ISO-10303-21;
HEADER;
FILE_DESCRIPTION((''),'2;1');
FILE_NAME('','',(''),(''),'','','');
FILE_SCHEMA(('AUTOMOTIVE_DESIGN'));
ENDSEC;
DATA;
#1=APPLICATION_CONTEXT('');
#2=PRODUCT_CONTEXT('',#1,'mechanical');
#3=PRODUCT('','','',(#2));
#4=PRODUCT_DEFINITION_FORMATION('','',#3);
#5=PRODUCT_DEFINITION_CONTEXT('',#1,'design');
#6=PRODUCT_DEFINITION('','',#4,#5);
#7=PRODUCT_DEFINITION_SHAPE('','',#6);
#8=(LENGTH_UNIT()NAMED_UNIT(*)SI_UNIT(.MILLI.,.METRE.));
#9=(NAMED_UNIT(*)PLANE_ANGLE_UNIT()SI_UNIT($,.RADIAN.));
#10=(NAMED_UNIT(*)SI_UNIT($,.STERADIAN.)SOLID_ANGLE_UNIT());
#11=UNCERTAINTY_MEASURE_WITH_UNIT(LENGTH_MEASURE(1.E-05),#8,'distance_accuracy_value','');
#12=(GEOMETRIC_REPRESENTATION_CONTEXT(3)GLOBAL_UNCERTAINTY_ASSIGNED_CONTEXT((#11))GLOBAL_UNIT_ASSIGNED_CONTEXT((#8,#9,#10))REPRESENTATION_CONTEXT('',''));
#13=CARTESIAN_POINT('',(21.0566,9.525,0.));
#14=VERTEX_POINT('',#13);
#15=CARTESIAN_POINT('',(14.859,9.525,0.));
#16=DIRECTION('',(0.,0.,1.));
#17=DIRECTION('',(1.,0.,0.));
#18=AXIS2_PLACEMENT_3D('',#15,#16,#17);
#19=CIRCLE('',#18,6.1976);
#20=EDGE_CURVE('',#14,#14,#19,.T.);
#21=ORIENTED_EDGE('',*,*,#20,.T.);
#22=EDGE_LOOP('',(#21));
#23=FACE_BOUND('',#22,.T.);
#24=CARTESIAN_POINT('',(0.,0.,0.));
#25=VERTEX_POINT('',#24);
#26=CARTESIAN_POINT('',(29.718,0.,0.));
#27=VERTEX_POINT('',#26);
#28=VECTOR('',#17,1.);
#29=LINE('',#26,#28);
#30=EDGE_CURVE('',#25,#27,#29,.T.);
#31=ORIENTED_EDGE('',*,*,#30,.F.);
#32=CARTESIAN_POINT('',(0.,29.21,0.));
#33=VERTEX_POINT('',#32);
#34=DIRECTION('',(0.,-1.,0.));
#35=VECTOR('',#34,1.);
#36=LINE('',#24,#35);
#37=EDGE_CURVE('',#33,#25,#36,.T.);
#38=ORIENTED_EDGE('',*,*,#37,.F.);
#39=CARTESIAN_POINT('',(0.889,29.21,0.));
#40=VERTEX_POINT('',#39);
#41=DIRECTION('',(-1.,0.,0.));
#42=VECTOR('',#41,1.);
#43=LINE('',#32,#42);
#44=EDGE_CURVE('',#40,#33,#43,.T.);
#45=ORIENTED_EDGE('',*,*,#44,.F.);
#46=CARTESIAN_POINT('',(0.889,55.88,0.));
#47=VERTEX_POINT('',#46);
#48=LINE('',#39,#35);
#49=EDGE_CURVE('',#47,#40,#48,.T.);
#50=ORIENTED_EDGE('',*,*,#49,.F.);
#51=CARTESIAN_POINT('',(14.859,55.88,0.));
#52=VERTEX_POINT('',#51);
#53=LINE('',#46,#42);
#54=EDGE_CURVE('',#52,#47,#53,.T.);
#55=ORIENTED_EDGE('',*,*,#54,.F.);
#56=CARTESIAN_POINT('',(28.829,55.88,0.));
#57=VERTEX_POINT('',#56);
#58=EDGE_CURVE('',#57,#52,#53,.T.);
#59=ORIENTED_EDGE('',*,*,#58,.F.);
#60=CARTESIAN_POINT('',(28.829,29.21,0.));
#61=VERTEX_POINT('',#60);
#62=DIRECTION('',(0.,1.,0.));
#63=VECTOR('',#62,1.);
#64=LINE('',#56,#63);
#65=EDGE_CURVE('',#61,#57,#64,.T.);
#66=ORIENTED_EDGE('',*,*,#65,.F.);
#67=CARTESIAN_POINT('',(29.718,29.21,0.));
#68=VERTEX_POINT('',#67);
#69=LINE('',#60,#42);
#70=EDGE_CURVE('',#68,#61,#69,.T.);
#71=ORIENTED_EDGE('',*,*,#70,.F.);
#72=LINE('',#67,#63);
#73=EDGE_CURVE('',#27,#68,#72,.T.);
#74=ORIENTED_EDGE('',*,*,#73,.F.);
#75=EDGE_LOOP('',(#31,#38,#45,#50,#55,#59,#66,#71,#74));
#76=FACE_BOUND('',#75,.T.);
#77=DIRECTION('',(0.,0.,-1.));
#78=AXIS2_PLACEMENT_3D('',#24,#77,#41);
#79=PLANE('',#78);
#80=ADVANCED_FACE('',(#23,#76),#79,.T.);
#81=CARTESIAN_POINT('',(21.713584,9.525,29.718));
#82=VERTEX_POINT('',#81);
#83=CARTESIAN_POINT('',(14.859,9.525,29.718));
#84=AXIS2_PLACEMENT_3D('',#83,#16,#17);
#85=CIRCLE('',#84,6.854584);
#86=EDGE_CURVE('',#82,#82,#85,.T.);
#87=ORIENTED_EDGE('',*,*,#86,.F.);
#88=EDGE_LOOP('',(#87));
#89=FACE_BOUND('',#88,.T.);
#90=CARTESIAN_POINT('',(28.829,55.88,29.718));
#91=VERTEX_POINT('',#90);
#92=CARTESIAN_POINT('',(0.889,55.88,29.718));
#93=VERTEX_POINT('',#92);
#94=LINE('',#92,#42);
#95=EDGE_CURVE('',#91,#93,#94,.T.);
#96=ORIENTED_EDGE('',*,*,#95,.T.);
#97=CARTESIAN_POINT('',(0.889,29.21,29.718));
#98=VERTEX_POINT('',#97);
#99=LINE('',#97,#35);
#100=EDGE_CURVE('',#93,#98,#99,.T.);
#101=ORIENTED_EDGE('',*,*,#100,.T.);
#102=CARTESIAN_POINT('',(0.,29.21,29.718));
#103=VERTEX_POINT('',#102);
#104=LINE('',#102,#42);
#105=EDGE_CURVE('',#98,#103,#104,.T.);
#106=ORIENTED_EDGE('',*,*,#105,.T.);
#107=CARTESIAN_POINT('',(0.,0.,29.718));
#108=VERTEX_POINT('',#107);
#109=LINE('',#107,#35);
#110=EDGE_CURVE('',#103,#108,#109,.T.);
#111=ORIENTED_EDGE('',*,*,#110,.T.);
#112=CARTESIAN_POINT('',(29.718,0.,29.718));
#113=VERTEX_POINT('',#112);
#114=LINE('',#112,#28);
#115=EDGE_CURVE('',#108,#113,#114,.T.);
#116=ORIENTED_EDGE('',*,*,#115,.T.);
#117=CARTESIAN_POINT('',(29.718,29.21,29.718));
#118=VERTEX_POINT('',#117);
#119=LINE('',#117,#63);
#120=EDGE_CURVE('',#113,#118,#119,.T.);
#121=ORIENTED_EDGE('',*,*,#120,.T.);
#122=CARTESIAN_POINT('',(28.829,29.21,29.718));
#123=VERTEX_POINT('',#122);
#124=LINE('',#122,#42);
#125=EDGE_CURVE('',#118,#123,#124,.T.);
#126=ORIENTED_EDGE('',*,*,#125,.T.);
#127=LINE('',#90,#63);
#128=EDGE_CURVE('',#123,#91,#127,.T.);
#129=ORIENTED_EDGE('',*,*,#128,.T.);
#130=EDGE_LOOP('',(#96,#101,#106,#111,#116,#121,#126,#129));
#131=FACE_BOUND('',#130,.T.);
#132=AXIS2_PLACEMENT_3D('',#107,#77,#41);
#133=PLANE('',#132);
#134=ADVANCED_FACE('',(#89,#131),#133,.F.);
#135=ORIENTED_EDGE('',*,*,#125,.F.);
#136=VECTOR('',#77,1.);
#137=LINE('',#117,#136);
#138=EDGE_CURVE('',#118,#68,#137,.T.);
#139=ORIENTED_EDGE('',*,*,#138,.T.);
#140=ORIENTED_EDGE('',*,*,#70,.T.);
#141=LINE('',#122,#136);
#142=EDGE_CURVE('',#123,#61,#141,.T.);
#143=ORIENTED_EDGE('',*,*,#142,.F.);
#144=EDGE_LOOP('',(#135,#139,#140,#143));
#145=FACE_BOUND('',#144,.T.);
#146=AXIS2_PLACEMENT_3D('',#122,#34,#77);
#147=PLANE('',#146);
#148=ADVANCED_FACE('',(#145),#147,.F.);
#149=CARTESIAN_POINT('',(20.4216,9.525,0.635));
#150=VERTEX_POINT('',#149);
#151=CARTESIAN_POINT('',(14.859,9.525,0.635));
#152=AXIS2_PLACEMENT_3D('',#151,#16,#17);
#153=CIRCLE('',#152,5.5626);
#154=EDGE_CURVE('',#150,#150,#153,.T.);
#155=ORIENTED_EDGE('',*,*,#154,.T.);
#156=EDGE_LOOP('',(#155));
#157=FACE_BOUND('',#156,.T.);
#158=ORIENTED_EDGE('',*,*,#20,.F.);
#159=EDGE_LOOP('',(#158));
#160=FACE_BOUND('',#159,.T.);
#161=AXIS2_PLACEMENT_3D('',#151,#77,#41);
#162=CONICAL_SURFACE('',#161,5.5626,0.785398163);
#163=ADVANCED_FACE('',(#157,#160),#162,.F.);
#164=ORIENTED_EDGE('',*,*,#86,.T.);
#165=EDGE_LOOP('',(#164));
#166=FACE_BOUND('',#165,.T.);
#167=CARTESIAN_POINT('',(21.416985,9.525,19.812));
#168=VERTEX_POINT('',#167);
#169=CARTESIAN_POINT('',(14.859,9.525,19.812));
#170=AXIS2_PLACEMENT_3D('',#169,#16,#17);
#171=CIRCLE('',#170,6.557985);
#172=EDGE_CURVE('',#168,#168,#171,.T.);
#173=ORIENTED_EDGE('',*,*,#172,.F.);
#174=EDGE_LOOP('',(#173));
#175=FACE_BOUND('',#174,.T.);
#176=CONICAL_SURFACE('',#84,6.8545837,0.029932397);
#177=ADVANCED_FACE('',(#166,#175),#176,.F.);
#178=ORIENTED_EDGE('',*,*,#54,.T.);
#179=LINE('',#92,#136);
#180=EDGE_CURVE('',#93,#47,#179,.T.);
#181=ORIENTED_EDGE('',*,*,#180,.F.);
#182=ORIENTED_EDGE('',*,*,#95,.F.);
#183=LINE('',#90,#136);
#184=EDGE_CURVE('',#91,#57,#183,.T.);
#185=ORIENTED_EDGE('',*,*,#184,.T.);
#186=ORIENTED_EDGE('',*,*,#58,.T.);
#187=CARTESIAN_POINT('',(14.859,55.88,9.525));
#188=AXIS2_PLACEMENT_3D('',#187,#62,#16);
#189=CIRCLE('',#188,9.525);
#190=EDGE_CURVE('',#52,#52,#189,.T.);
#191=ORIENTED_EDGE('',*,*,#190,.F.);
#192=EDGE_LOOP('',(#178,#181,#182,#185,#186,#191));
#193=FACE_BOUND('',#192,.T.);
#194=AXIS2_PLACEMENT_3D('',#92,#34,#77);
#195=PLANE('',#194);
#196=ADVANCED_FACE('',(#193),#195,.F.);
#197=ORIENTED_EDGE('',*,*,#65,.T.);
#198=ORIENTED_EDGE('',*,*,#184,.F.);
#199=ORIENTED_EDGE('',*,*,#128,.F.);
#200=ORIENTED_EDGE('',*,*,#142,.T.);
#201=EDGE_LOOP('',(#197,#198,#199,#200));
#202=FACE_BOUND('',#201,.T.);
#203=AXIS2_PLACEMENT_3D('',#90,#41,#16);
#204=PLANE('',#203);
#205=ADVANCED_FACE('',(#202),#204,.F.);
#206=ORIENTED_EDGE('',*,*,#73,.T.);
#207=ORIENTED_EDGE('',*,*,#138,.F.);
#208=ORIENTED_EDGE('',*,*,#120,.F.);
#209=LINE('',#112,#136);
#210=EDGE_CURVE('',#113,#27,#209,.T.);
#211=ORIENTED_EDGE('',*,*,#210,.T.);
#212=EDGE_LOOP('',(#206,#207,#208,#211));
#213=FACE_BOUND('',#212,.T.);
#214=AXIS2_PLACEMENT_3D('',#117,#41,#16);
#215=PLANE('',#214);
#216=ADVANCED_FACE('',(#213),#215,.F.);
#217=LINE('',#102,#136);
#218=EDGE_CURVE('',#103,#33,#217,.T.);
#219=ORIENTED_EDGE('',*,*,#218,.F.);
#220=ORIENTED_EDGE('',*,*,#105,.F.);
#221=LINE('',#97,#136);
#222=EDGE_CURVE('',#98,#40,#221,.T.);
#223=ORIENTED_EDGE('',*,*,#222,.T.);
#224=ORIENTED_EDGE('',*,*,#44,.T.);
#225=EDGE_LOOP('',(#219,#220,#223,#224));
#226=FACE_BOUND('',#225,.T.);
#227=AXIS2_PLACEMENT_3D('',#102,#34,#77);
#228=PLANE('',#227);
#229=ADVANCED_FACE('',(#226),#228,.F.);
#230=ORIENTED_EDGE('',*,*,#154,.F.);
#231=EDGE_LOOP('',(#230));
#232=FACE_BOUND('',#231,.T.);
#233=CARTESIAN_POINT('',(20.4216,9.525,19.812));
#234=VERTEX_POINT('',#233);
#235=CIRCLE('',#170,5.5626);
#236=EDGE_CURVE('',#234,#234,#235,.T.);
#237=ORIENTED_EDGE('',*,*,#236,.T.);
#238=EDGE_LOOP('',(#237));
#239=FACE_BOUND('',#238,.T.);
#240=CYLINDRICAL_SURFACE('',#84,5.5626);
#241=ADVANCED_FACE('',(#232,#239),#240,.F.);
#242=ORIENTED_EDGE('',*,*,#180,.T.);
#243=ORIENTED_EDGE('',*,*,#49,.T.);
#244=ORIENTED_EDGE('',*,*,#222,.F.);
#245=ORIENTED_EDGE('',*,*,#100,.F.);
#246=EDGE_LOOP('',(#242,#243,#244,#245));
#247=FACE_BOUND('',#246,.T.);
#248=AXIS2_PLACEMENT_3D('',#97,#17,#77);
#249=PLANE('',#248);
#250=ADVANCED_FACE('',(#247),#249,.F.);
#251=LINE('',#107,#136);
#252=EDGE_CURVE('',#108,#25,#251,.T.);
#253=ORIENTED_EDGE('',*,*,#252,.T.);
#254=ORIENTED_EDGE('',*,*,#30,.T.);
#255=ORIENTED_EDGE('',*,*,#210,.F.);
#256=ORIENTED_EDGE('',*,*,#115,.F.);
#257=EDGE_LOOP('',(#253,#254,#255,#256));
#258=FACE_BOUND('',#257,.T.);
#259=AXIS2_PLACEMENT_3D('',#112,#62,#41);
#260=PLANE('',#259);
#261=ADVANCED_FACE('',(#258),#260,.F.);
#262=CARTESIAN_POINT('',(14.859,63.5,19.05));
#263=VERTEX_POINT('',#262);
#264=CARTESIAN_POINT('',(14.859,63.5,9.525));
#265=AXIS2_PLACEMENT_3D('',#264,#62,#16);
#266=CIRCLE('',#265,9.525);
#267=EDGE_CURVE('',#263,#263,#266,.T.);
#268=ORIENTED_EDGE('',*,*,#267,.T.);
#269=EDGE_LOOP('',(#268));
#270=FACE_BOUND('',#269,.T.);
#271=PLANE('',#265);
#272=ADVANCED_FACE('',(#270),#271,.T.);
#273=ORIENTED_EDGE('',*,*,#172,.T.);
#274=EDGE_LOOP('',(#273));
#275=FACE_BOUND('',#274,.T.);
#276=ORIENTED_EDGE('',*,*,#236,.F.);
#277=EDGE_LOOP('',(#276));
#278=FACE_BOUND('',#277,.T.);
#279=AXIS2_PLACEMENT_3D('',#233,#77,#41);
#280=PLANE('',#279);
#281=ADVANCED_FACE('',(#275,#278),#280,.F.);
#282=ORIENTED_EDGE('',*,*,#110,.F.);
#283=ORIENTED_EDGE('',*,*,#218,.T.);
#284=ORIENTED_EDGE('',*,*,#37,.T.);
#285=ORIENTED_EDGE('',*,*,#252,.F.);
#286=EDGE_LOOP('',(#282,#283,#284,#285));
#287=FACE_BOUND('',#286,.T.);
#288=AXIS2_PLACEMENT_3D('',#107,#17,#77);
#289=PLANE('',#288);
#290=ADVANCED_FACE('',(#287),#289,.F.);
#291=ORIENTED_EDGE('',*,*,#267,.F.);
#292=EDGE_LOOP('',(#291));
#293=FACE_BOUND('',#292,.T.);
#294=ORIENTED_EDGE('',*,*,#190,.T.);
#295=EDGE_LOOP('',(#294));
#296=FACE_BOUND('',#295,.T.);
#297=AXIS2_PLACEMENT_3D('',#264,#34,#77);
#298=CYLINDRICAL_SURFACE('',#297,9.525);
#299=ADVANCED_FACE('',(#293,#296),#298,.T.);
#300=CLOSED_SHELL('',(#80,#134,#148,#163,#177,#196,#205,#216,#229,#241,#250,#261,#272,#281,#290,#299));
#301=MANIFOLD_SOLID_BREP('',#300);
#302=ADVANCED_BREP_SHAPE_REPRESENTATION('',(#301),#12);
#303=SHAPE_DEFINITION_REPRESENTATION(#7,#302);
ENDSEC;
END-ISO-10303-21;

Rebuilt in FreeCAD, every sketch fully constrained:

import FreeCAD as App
import Part
import Sketcher
from FreeCAD import Vector
Q = App.Units.Quantity


def add_polygon(sketch, points):
    """Adds a closed chain of lines whose ends are joined by coincident constraints."""
    first, n = sketch.GeometryCount, len(points)
    for a, b in zip(points, points[1:] + points[:1]):
        sketch.addGeometry(Part.LineSegment(App.Vector(*a, 0), App.Vector(*b, 0)), False)
    for i in range(n):
        sketch.addConstraint(Sketcher.Constraint("Coincident", first + i, 2, first + (i + 1) % n, 1))

doc = App.newDocument("Part")
body = doc.addObject("PartDesign::Body", "Body")

# Sketch on XY plane
sketch1 = doc.addObject("Sketcher::SketchObject", "Sketch")
body.addObject(sketch1)
sketch1.AttachmentSupport = (doc.XY_Plane, [""])
sketch1.MapMode = "FlatFace"
add_polygon(sketch1, [(0, 29.21), (0, 0), (29.718, 0), (29.718, 29.21), (28.829, 29.21), (28.829, 55.88), (0.889, 55.88), (0.889, 29.21)])  # lines 0-7
sketch1.addConstraint(Sketcher.Constraint("Vertical", 0))
sketch1.addConstraint(Sketcher.Constraint("Horizontal", 1))
sketch1.addConstraint(Sketcher.Constraint("Vertical", 2))
sketch1.addConstraint(Sketcher.Constraint("Horizontal", 3))
sketch1.addConstraint(Sketcher.Constraint("Vertical", 4))
sketch1.addConstraint(Sketcher.Constraint("Horizontal", 5))
sketch1.addConstraint(Sketcher.Constraint("Vertical", 6))
sketch1.addConstraint(Sketcher.Constraint("Horizontal", 7))
sketch1.addConstraint(Sketcher.Constraint("Coincident", 0, 2, -1, 1))
sketch1.addConstraint(Sketcher.Constraint("Horizontal", 3, 2, 6, 2))
sketch1.addConstraint(Sketcher.Constraint("Equal", 3, 7))
sketch1.addConstraint(Sketcher.Constraint("DistanceX", 5, 2, 5, 1, Q("1.1 in")))
sketch1.addConstraint(Sketcher.Constraint("DistanceX", 1, 1, 1, 2, Q("1.17 in")))
sketch1.addConstraint(Sketcher.Constraint("DistanceY", 0, 2, 0, 1, Q("1.15 in")))
sketch1.addConstraint(Sketcher.Constraint("DistanceY", 4, 1, 4, 2, Q("1.05 in")))
pad1 = doc.addObject("PartDesign::Pad", "Pad")
body.addObject(pad1)
pad1.Profile = sketch1
pad1.Length = Q("1.17 in")

# Sketch on XZ plane
sketch2 = doc.addObject("Sketcher::SketchObject", "Sketch001")
body.addObject(sketch2)
sketch2.AttachmentSupport = (doc.XZ_Plane, [""])
sketch2.MapMode = "FlatFace"
sketch2.AttachmentOffset = App.Placement(Vector(0, 0, -2.2 * 25.4), App.Rotation())
sketch2.addGeometry(Part.Circle(Vector(14.859, 9.525, 0), Vector(0, 0, 1), 9.525), False)
sketch2.addConstraint(Sketcher.Constraint("Diameter", 0, Q("0.75 in")))
sketch2.addConstraint(Sketcher.Constraint("DistanceX", -1, 1, 0, 3, Q("0.585 in")))
sketch2.addConstraint(Sketcher.Constraint("DistanceY", -1, 1, 0, 3, Q("0.375 in")))
pad2 = doc.addObject("PartDesign::Pad", "Pad001")
body.addObject(pad2)
pad2.Profile = sketch2
pad2.Length = Q("0.3 in")
pad2.Reversed = True

# Sketch on YZ plane
sketch3 = doc.addObject("Sketcher::SketchObject", "Sketch002")
body.addObject(sketch3)
sketch3.AttachmentSupport = (doc.YZ_Plane, [""])
sketch3.MapMode = "FlatFace"
sketch3.AttachmentOffset = App.Placement(Vector(0, 0, 0.585 * 25.4), App.Rotation())
add_polygon(sketch3, [(9.525, 0), (9.525, 29.718), (2.670416, 29.718), (2.967015, 19.812), (3.9624, 19.812), (3.9624, 0.635), (3.3274, 0)])  # lines 0-6
sketch3.addGeometry(Part.LineSegment(Vector(9.525, 29.718, 0), Vector(9.525, 0, 0)), True)  # axis
sketch3.addConstraint(Sketcher.Constraint("Vertical", 0))
sketch3.addConstraint(Sketcher.Constraint("Horizontal", 1))
sketch3.addConstraint(Sketcher.Constraint("Horizontal", 3))
sketch3.addConstraint(Sketcher.Constraint("Vertical", 4))
sketch3.addConstraint(Sketcher.Constraint("Horizontal", 6))
sketch3.addConstraint(Sketcher.Constraint("Vertical", 7))
sketch3.addConstraint(Sketcher.Constraint("Coincident", 7, 1, 0, 2))
sketch3.addConstraint(Sketcher.Constraint("PointOnObject", 5, 2, -1))
sketch3.addConstraint(Sketcher.Constraint("PointOnObject", 7, 2, -1))
sketch3.addConstraint(Sketcher.Constraint("Angle", 5, Q("-135 deg")))
sketch3.addConstraint(Sketcher.Constraint("DistanceY", 0, 1, 0, 2, Q("1.17 in")))
sketch3.addConstraint(Sketcher.Constraint("DistanceX", 6, 1, 6, 2, Q("0.244 in")))
sketch3.addConstraint(Sketcher.Constraint("DistanceY", 4, 2, 4, 1, Q("0.755 in")))
sketch3.addConstraint(Sketcher.Constraint("DistanceY", -1, 1, 2, 2, Q("0.78 in")))
sketch3.addConstraint(Sketcher.Constraint("DistanceX", -1, 1, 0, 2, Q("0.375 in")))
sketch3.addConstraint(Sketcher.Constraint("DistanceX", 1, 2, 2, 2, Q("0.296599 mm")))
sketch3.addConstraint(Sketcher.Constraint("DistanceX", 1, 2, 1, 1, Q("6.854584 mm")))
groove = doc.addObject("PartDesign::Groove", "Groove")
body.addObject(groove)
groove.Profile = sketch3
groove.ReferenceAxis = (sketch3, ["Axis0"])
groove.Angle = 360

doc.recompute()
